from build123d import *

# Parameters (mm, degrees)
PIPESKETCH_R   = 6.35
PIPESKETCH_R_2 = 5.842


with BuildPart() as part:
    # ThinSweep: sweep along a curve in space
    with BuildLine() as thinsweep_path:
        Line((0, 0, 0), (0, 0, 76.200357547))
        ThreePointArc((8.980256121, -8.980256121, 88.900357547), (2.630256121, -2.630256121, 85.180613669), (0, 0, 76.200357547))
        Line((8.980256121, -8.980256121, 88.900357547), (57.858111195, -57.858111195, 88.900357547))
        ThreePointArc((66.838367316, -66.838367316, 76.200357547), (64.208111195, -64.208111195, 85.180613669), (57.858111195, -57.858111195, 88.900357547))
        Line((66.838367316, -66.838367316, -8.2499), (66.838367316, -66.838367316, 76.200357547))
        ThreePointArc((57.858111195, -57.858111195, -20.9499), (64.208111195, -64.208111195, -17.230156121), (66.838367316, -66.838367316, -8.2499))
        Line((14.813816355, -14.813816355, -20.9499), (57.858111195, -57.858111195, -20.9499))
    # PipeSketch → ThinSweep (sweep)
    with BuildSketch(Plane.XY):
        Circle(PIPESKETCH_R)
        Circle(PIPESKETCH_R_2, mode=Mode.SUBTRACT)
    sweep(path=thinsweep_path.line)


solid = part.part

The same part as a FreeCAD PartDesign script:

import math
import FreeCAD as App
import Part
import Sketcher
from FreeCAD import Vector
Q = App.Units.Quantity

doc = App.newDocument("Part")
body = doc.addObject("PartDesign::Body", "Body")

sketch1 = doc.addObject("Sketcher::SketchObject", "Sketch")
body.addObject(sketch1)
sketch1.AttachmentSupport = (doc.XY_Plane, [""])
sketch1.MapMode = "FlatFace"
sketch1.addGeometry(Part.Circle(Vector(0, 0, 0), Vector(0, 0, 1), 6), False)
sketch1.addGeometry(Part.Circle(Vector(0, 0, 0), Vector(0, 0, 1), 6), False)
sketch1.addConstraint(Sketcher.Constraint("Coincident", 0, 3, -1, 1))
sketch1.addConstraint(Sketcher.Constraint("Coincident", 1, 3, -1, 1))
sketch1.addConstraint(Sketcher.Constraint("Diameter", 0, Q("0.5 in")))
sketch1.addConstraint(Sketcher.Constraint("Diameter", 1, Q("0.46 in")))

sketch2 = doc.addObject("Sketcher::SketchObject", "Sketch001")
body.addObject(sketch2)
sketch2.Placement = App.Placement(Vector(0, 0, 0), App.Rotation(Vector(-0.707106781, 0.707106781, 0), Vector(0, 0, 0.999999999), Vector(0.707106781, 0.707106781, 0), "ZXY"))
sketch2.addGeometry(Part.LineSegment(Vector(0, 0, 0), Vector(0, 76, 0)), False)
sketch2.addGeometry(Part.ArcOfCircle(Part.Circle(Vector(-13, 76, 0), Vector(0, 0, 1), 13), math.radians(0), math.radians(90)), False)
sketch2.addGeometry(Part.LineSegment(Vector(-13, 89, 0), Vector(-82, 89, 0)), False)
sketch2.addGeometry(Part.ArcOfCircle(Part.Circle(Vector(-82, 76, 0), Vector(0, 0, 1), 13), math.radians(90), math.radians(180)), False)
sketch2.addGeometry(Part.LineSegment(Vector(-95, 76, 0), Vector(-95, -8, 0)), False)
sketch2.addGeometry(Part.ArcOfCircle(Part.Circle(Vector(-82, -8, 0), Vector(0, 0, 1), 13), math.radians(180), math.radians(270)), False)
sketch2.addGeometry(Part.LineSegment(Vector(-82, -21, 0), Vector(-21, -21, 0)), False)
sketch2.addConstraint(Sketcher.Constraint("Tangent", 0, 2, 1, 1))
sketch2.addConstraint(Sketcher.Constraint("Tangent", 1, 2, 2, 1))
sketch2.addConstraint(Sketcher.Constraint("Tangent", 2, 2, 3, 1))
sketch2.addConstraint(Sketcher.Constraint("Tangent", 3, 2, 4, 1))
sketch2.addConstraint(Sketcher.Constraint("Tangent", 4, 2, 5, 1))
sketch2.addConstraint(Sketcher.Constraint("Tangent", 5, 2, 6, 1))
sketch2.addConstraint(Sketcher.Constraint("Vertical", 0))
sketch2.addConstraint(Sketcher.Constraint("Horizontal", 2))
sketch2.addConstraint(Sketcher.Constraint("Vertical", 4))
sketch2.addConstraint(Sketcher.Constraint("Horizontal", 6))
sketch2.addConstraint(Sketcher.Constraint("Coincident", 0, 1, -1, 1))
sketch2.addConstraint(Sketcher.Constraint("Equal", 1, 3))
sketch2.addConstraint(Sketcher.Constraint("Equal", 3, 5))
sketch2.addConstraint(Sketcher.Constraint("Radius", 1, Q("0.5 in")))
sketch2.addConstraint(Sketcher.Constraint("DistanceY", 5, 3, -1, 1, Q("8.2499 mm")))
sketch2.addConstraint(Sketcher.Constraint("DistanceX", 6, 2, -1, 1, Q("20.9499 mm")))
sketch2.addConstraint(Sketcher.Constraint("DistanceX", 2, 2, 2, 1, Q("69.123726 mm")))
sketch2.addConstraint(Sketcher.Constraint("DistanceY", 0, 1, 0, 2, Q("76.200357 mm")))
doc.recompute()

additivepipe = doc.addObject("PartDesign::AdditivePipe", "AdditivePipe")
body.addObject(additivepipe)
additivepipe.Profile = sketch1
additivepipe.Spine = (sketch2, ["Edge1", "Edge2", "Edge3", "Edge4", "Edge5", "Edge6", "Edge7"])

doc.recompute()
